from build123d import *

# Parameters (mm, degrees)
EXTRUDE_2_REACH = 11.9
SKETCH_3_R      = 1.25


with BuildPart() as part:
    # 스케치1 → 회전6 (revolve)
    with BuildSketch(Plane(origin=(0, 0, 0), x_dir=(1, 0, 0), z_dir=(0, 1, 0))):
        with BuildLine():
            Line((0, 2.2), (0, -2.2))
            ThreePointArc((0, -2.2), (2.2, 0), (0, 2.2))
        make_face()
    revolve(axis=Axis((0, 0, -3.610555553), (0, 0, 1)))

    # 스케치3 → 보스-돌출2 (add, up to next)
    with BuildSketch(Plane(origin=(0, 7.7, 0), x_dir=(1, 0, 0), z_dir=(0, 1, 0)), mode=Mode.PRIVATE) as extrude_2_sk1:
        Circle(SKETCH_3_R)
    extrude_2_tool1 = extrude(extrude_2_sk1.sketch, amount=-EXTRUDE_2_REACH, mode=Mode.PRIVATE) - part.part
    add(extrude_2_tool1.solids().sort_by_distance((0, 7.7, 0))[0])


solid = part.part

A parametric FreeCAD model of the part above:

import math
import FreeCAD as App
import Part
import Sketcher

V = App.Vector

doc = App.newDocument("Part")
params = doc.addObject("Spreadsheet::Sheet", "Params")
for row, (alias, value) in enumerate([
    ("sketch1_radius", "2.2 mm"),
    ("revolution_angle", "360 deg"),
    ("sketch2_diameter", "2.5 mm"),
], start=1):
    params.set(f"A{row}", alias)
    params.set(f"B{row}", "=" + value)
    params.setAlias(f"B{row}", alias)

body = doc.addObject("PartDesign::Body", "Body")

# Sketch on XZ plane
sketch1 = doc.addObject("Sketcher::SketchObject", "Sketch")
body.addObject(sketch1)
sketch1.AttachmentSupport = (doc.XZ_Plane, [""])
sketch1.MapMode = "FlatFace"
sketch1.addGeometry(Part.LineSegment(V(0, -2.2, 0), V(0, 2.2, 0)), False)
sketch1.addGeometry(Part.ArcOfCircle(Part.Circle(V(0, 0, 0), V(0, 0, 1), 2.2), math.radians(-90), math.radians(90)), False)
sketch1.addConstraint(Sketcher.Constraint("Coincident", 0, 1, 1, 1))
sketch1.addConstraint(Sketcher.Constraint("Coincident", 1, 2, 0, 2))
sketch1.addConstraint(Sketcher.Constraint("Vertical", 0))
sketch1.addConstraint(Sketcher.Constraint("Coincident", 1, 3, -1, 1))
sketch1.addConstraint(Sketcher.Constraint("PointOnObject", 0, 1, -2))
sketch1.addConstraint(Sketcher.Constraint("Radius", 1, 2.2))
sketch1.setExpression("Constraints[5]", "Params.sketch1_radius")
revolution = doc.addObject("PartDesign::Revolution", "Revolution")
body.addObject(revolution)
revolution.Profile = sketch1
revolution.ReferenceAxis = (sketch1, ["V_Axis"])
revolution.setExpression("Angle", "Params.revolution_angle")

# Sketch on XZ plane
sketch2 = doc.addObject("Sketcher::SketchObject", "Sketch001")
body.addObject(sketch2)
sketch2.AttachmentSupport = (doc.XZ_Plane, [""])
sketch2.MapMode = "FlatFace"
sketch2.AttachmentOffset = App.Placement(V(0, 0, -7.7), App.Rotation())
sketch2.addGeometry(Part.Circle(V(0, 0, 0), V(0, 0, 1), 1.2), False)
sketch2.addConstraint(Sketcher.Constraint("Coincident", 0, 3, -1, 1))
sketch2.addConstraint(Sketcher.Constraint("Diameter", 0, 2.5))
sketch2.setExpression("Constraints[1]", "Params.sketch2_diameter")
pad1 = doc.addObject("PartDesign::Pad", "Pad")
body.addObject(pad1)
pad1.Profile = sketch2
pad1.Type = "UpToFirst"

doc.recompute()
